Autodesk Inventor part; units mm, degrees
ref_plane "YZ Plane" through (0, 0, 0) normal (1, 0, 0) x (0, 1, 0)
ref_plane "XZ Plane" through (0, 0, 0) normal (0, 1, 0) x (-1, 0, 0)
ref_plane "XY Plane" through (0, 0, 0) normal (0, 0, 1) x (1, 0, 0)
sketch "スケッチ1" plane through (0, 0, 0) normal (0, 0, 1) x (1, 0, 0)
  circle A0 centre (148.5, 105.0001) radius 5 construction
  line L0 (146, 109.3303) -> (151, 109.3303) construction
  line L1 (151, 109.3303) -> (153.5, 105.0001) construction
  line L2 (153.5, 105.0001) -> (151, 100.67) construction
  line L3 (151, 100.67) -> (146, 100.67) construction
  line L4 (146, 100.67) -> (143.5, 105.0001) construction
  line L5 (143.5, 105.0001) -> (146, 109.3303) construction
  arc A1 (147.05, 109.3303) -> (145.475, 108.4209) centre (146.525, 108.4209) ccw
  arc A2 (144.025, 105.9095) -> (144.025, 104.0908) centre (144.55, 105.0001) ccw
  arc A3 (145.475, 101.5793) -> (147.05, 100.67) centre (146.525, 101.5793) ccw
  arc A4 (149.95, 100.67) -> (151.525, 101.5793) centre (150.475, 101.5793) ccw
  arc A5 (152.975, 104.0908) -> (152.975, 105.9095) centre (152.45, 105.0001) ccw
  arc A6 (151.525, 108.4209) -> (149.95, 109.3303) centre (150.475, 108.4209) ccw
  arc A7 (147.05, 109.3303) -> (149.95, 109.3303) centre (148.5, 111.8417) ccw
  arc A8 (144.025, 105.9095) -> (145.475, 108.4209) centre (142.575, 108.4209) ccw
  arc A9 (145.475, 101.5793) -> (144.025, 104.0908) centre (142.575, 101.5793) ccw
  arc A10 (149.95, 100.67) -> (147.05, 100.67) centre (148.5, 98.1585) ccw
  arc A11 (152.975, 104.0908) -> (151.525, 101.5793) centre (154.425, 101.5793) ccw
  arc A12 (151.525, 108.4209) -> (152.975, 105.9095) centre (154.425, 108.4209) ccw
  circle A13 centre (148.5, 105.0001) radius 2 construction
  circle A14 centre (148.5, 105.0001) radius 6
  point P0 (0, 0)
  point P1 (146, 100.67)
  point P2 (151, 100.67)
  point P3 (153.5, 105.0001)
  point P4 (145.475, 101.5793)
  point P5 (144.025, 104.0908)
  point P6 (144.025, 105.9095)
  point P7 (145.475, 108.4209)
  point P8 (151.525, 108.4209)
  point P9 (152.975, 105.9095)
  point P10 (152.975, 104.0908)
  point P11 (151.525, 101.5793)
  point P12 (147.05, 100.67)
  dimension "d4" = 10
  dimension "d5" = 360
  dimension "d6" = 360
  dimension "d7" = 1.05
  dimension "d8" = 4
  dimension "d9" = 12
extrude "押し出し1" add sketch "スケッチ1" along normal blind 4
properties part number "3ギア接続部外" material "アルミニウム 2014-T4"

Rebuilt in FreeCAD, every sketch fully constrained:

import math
import FreeCAD as App
import Part
import Sketcher

V = App.Vector

doc = App.newDocument("Part")
params = doc.addObject("Spreadsheet::Sheet", "Params")
for row, (alias, value) in enumerate([
    ("sketch1_diameter", "12 mm"),
    ("sketch1_radius", "1.05 mm"),
    ("sketch1_radius2", "2.9 mm"),
    ("pad1_length", "4 mm"),
], start=1):
    params.set(f"A{row}", alias)
    params.set(f"B{row}", "=" + value)
    params.setAlias(f"B{row}", alias)

body = doc.addObject("PartDesign::Body", "Body")

# Sketch on XY plane
sketch1 = body.newObject("Sketcher::SketchObject", "Sketch")
sketch1.AttachmentSupport = (doc.getObject("XY_Plane"), [""])
sketch1.MapMode = "FlatFace"
sketch1.addGeometry(Part.Circle(V(148.5, 105, 0), V(0, 0, 1), 6), False)
sketch1.addGeometry(Part.ArcOfCircle(Part.Circle(V(146.5, 108.4, 0), V(0, 0, 1), 1.1), math.radians(60), math.radians(180)), False)
sketch1.addGeometry(Part.ArcOfCircle(Part.Circle(V(148.5, 111.8, 0), V(0, 0, 1), 2.9), math.radians(-120), math.radians(-60)), False)
sketch1.addGeometry(Part.ArcOfCircle(Part.Circle(V(150.5, 108.4, 0), V(0, 0, 1), 1.1), math.radians(0), math.radians(120)), False)
sketch1.addGeometry(Part.ArcOfCircle(Part.Circle(V(154.4, 108.4, 0), V(0, 0, 1), 2.9), math.radians(180), math.radians(240)), False)
sketch1.addGeometry(Part.ArcOfCircle(Part.Circle(V(152.4, 105, 0), V(0, 0, 1), 1), math.radians(-60), math.radians(60)), False)
sketch1.addGeometry(Part.ArcOfCircle(Part.Circle(V(154.4, 101.6, 0), V(0, 0, 1), 2.9), math.radians(120), math.radians(180)), False)
sketch1.addGeometry(Part.ArcOfCircle(Part.Circle(V(150.5, 101.6, 0), V(0, 0, 1), 1), math.radians(-120), math.radians(0)), False)
sketch1.addGeometry(Part.ArcOfCircle(Part.Circle(V(148.5, 98.2, 0), V(0, 0, 1), 2.9), math.radians(60), math.radians(120)), False)
sketch1.addGeometry(Part.ArcOfCircle(Part.Circle(V(146.5, 101.6, 0), V(0, 0, 1), 1.1), math.radians(180), math.radians(300)), False)
sketch1.addGeometry(Part.ArcOfCircle(Part.Circle(V(142.6, 101.6, 0), V(0, 0, 1), 2.9), math.radians(0), math.radians(60)), False)
sketch1.addGeometry(Part.ArcOfCircle(Part.Circle(V(144.6, 105, 0), V(0, 0, 1), 1.1), math.radians(120), math.radians(240)), False)
sketch1.addGeometry(Part.ArcOfCircle(Part.Circle(V(142.6, 108.4, 0), V(0, 0, 1), 2.9), math.radians(-60), math.radians(0)), False)
sketch1.addConstraint(Sketcher.Constraint("Tangent", 1, 1, 2, 1))
sketch1.addConstraint(Sketcher.Constraint("Tangent", 2, 2, 3, 2))
sketch1.addConstraint(Sketcher.Constraint("Tangent", 3, 1, 4, 1))
sketch1.addConstraint(Sketcher.Constraint("Tangent", 4, 2, 5, 2))
sketch1.addConstraint(Sketcher.Constraint("Tangent", 5, 1, 6, 1))
sketch1.addConstraint(Sketcher.Constraint("Tangent", 6, 2, 7, 2))
sketch1.addConstraint(Sketcher.Constraint("Tangent", 7, 1, 8, 1))
sketch1.addConstraint(Sketcher.Constraint("Tangent", 8, 2, 9, 2))
sketch1.addConstraint(Sketcher.Constraint("Tangent", 9, 1, 10, 1))
sketch1.addConstraint(Sketcher.Constraint("Tangent", 10, 2, 11, 2))
sketch1.addConstraint(Sketcher.Constraint("Tangent", 11, 1, 12, 1))
sketch1.addConstraint(Sketcher.Constraint("Tangent", 12, 2, 1, 2))
sketch1.addConstraint(Sketcher.Constraint("Equal", 1, 3))
sketch1.addConstraint(Sketcher.Constraint("Equal", 2, 4))
sketch1.addConstraint(Sketcher.Constraint("Equal", 3, 5))
sketch1.addConstraint(Sketcher.Constraint("Equal", 4, 6))
sketch1.addConstraint(Sketcher.Constraint("Equal", 5, 7))
sketch1.addConstraint(Sketcher.Constraint("Equal", 6, 8))
sketch1.addConstraint(Sketcher.Constraint("Equal", 7, 9))
sketch1.addConstraint(Sketcher.Constraint("Equal", 8, 10))
sketch1.addConstraint(Sketcher.Constraint("Equal", 9, 11))
sketch1.addConstraint(Sketcher.Constraint("Equal", 10, 12))
sketch1.addConstraint(Sketcher.Constraint("Horizontal", 1, 3, 3, 3))
sketch1.addConstraint(Sketcher.Constraint("Horizontal", 3, 3, 4, 3))
sketch1.addConstraint(Sketcher.Constraint("Horizontal", 0, 3, 5, 3))
sketch1.addConstraint(Sketcher.Constraint("Horizontal", 6, 3, 7, 3))
sketch1.addConstraint(Sketcher.Constraint("Horizontal", 7, 3, 9, 3))
sketch1.addConstraint(Sketcher.Constraint("Horizontal", 9, 3, 10, 3))
sketch1.addConstraint(Sketcher.Constraint("Horizontal", 5, 3, 11, 3))
sketch1.addConstraint(Sketcher.Constraint("Horizontal", 4, 3, 12, 3))
sketch1.addConstraint(Sketcher.Constraint("Vertical", 0, 3, 2, 3))
sketch1.addConstraint(Sketcher.Constraint("Vertical", 4, 3, 6, 3))
sketch1.addConstraint(Sketcher.Constraint("Diameter", 0, 12.0))
sketch1.addConstraint(Sketcher.Constraint("Radius", 1, 1.05))
sketch1.addConstraint(Sketcher.Constraint("Radius", 2, 2.9))
sketch1.addConstraint(Sketcher.Constraint("DistanceY", -1, 1, 0, 3, 105.0))
sketch1.addConstraint(Sketcher.Constraint("DistanceX", -1, 1, 0, 3, 148.5))
sketch1.addConstraint(Sketcher.Constraint("DistanceX", 1, 3, 4, 3, 7.9))
sketch1.addConstraint(Sketcher.Constraint("DistanceX", 3, 3, 4, 2, 2.5))
sketch1.setExpression("Constraints[32]", "Params.sketch1_diameter")
sketch1.setExpression("Constraints[33]", "Params.sketch1_radius")
sketch1.setExpression("Constraints[34]", "Params.sketch1_radius2")
pad1 = body.newObject("PartDesign::Pad", "Pad")
pad1.Profile = sketch1
pad1.setExpression("Length", "Params.pad1_length")

doc.recompute()
